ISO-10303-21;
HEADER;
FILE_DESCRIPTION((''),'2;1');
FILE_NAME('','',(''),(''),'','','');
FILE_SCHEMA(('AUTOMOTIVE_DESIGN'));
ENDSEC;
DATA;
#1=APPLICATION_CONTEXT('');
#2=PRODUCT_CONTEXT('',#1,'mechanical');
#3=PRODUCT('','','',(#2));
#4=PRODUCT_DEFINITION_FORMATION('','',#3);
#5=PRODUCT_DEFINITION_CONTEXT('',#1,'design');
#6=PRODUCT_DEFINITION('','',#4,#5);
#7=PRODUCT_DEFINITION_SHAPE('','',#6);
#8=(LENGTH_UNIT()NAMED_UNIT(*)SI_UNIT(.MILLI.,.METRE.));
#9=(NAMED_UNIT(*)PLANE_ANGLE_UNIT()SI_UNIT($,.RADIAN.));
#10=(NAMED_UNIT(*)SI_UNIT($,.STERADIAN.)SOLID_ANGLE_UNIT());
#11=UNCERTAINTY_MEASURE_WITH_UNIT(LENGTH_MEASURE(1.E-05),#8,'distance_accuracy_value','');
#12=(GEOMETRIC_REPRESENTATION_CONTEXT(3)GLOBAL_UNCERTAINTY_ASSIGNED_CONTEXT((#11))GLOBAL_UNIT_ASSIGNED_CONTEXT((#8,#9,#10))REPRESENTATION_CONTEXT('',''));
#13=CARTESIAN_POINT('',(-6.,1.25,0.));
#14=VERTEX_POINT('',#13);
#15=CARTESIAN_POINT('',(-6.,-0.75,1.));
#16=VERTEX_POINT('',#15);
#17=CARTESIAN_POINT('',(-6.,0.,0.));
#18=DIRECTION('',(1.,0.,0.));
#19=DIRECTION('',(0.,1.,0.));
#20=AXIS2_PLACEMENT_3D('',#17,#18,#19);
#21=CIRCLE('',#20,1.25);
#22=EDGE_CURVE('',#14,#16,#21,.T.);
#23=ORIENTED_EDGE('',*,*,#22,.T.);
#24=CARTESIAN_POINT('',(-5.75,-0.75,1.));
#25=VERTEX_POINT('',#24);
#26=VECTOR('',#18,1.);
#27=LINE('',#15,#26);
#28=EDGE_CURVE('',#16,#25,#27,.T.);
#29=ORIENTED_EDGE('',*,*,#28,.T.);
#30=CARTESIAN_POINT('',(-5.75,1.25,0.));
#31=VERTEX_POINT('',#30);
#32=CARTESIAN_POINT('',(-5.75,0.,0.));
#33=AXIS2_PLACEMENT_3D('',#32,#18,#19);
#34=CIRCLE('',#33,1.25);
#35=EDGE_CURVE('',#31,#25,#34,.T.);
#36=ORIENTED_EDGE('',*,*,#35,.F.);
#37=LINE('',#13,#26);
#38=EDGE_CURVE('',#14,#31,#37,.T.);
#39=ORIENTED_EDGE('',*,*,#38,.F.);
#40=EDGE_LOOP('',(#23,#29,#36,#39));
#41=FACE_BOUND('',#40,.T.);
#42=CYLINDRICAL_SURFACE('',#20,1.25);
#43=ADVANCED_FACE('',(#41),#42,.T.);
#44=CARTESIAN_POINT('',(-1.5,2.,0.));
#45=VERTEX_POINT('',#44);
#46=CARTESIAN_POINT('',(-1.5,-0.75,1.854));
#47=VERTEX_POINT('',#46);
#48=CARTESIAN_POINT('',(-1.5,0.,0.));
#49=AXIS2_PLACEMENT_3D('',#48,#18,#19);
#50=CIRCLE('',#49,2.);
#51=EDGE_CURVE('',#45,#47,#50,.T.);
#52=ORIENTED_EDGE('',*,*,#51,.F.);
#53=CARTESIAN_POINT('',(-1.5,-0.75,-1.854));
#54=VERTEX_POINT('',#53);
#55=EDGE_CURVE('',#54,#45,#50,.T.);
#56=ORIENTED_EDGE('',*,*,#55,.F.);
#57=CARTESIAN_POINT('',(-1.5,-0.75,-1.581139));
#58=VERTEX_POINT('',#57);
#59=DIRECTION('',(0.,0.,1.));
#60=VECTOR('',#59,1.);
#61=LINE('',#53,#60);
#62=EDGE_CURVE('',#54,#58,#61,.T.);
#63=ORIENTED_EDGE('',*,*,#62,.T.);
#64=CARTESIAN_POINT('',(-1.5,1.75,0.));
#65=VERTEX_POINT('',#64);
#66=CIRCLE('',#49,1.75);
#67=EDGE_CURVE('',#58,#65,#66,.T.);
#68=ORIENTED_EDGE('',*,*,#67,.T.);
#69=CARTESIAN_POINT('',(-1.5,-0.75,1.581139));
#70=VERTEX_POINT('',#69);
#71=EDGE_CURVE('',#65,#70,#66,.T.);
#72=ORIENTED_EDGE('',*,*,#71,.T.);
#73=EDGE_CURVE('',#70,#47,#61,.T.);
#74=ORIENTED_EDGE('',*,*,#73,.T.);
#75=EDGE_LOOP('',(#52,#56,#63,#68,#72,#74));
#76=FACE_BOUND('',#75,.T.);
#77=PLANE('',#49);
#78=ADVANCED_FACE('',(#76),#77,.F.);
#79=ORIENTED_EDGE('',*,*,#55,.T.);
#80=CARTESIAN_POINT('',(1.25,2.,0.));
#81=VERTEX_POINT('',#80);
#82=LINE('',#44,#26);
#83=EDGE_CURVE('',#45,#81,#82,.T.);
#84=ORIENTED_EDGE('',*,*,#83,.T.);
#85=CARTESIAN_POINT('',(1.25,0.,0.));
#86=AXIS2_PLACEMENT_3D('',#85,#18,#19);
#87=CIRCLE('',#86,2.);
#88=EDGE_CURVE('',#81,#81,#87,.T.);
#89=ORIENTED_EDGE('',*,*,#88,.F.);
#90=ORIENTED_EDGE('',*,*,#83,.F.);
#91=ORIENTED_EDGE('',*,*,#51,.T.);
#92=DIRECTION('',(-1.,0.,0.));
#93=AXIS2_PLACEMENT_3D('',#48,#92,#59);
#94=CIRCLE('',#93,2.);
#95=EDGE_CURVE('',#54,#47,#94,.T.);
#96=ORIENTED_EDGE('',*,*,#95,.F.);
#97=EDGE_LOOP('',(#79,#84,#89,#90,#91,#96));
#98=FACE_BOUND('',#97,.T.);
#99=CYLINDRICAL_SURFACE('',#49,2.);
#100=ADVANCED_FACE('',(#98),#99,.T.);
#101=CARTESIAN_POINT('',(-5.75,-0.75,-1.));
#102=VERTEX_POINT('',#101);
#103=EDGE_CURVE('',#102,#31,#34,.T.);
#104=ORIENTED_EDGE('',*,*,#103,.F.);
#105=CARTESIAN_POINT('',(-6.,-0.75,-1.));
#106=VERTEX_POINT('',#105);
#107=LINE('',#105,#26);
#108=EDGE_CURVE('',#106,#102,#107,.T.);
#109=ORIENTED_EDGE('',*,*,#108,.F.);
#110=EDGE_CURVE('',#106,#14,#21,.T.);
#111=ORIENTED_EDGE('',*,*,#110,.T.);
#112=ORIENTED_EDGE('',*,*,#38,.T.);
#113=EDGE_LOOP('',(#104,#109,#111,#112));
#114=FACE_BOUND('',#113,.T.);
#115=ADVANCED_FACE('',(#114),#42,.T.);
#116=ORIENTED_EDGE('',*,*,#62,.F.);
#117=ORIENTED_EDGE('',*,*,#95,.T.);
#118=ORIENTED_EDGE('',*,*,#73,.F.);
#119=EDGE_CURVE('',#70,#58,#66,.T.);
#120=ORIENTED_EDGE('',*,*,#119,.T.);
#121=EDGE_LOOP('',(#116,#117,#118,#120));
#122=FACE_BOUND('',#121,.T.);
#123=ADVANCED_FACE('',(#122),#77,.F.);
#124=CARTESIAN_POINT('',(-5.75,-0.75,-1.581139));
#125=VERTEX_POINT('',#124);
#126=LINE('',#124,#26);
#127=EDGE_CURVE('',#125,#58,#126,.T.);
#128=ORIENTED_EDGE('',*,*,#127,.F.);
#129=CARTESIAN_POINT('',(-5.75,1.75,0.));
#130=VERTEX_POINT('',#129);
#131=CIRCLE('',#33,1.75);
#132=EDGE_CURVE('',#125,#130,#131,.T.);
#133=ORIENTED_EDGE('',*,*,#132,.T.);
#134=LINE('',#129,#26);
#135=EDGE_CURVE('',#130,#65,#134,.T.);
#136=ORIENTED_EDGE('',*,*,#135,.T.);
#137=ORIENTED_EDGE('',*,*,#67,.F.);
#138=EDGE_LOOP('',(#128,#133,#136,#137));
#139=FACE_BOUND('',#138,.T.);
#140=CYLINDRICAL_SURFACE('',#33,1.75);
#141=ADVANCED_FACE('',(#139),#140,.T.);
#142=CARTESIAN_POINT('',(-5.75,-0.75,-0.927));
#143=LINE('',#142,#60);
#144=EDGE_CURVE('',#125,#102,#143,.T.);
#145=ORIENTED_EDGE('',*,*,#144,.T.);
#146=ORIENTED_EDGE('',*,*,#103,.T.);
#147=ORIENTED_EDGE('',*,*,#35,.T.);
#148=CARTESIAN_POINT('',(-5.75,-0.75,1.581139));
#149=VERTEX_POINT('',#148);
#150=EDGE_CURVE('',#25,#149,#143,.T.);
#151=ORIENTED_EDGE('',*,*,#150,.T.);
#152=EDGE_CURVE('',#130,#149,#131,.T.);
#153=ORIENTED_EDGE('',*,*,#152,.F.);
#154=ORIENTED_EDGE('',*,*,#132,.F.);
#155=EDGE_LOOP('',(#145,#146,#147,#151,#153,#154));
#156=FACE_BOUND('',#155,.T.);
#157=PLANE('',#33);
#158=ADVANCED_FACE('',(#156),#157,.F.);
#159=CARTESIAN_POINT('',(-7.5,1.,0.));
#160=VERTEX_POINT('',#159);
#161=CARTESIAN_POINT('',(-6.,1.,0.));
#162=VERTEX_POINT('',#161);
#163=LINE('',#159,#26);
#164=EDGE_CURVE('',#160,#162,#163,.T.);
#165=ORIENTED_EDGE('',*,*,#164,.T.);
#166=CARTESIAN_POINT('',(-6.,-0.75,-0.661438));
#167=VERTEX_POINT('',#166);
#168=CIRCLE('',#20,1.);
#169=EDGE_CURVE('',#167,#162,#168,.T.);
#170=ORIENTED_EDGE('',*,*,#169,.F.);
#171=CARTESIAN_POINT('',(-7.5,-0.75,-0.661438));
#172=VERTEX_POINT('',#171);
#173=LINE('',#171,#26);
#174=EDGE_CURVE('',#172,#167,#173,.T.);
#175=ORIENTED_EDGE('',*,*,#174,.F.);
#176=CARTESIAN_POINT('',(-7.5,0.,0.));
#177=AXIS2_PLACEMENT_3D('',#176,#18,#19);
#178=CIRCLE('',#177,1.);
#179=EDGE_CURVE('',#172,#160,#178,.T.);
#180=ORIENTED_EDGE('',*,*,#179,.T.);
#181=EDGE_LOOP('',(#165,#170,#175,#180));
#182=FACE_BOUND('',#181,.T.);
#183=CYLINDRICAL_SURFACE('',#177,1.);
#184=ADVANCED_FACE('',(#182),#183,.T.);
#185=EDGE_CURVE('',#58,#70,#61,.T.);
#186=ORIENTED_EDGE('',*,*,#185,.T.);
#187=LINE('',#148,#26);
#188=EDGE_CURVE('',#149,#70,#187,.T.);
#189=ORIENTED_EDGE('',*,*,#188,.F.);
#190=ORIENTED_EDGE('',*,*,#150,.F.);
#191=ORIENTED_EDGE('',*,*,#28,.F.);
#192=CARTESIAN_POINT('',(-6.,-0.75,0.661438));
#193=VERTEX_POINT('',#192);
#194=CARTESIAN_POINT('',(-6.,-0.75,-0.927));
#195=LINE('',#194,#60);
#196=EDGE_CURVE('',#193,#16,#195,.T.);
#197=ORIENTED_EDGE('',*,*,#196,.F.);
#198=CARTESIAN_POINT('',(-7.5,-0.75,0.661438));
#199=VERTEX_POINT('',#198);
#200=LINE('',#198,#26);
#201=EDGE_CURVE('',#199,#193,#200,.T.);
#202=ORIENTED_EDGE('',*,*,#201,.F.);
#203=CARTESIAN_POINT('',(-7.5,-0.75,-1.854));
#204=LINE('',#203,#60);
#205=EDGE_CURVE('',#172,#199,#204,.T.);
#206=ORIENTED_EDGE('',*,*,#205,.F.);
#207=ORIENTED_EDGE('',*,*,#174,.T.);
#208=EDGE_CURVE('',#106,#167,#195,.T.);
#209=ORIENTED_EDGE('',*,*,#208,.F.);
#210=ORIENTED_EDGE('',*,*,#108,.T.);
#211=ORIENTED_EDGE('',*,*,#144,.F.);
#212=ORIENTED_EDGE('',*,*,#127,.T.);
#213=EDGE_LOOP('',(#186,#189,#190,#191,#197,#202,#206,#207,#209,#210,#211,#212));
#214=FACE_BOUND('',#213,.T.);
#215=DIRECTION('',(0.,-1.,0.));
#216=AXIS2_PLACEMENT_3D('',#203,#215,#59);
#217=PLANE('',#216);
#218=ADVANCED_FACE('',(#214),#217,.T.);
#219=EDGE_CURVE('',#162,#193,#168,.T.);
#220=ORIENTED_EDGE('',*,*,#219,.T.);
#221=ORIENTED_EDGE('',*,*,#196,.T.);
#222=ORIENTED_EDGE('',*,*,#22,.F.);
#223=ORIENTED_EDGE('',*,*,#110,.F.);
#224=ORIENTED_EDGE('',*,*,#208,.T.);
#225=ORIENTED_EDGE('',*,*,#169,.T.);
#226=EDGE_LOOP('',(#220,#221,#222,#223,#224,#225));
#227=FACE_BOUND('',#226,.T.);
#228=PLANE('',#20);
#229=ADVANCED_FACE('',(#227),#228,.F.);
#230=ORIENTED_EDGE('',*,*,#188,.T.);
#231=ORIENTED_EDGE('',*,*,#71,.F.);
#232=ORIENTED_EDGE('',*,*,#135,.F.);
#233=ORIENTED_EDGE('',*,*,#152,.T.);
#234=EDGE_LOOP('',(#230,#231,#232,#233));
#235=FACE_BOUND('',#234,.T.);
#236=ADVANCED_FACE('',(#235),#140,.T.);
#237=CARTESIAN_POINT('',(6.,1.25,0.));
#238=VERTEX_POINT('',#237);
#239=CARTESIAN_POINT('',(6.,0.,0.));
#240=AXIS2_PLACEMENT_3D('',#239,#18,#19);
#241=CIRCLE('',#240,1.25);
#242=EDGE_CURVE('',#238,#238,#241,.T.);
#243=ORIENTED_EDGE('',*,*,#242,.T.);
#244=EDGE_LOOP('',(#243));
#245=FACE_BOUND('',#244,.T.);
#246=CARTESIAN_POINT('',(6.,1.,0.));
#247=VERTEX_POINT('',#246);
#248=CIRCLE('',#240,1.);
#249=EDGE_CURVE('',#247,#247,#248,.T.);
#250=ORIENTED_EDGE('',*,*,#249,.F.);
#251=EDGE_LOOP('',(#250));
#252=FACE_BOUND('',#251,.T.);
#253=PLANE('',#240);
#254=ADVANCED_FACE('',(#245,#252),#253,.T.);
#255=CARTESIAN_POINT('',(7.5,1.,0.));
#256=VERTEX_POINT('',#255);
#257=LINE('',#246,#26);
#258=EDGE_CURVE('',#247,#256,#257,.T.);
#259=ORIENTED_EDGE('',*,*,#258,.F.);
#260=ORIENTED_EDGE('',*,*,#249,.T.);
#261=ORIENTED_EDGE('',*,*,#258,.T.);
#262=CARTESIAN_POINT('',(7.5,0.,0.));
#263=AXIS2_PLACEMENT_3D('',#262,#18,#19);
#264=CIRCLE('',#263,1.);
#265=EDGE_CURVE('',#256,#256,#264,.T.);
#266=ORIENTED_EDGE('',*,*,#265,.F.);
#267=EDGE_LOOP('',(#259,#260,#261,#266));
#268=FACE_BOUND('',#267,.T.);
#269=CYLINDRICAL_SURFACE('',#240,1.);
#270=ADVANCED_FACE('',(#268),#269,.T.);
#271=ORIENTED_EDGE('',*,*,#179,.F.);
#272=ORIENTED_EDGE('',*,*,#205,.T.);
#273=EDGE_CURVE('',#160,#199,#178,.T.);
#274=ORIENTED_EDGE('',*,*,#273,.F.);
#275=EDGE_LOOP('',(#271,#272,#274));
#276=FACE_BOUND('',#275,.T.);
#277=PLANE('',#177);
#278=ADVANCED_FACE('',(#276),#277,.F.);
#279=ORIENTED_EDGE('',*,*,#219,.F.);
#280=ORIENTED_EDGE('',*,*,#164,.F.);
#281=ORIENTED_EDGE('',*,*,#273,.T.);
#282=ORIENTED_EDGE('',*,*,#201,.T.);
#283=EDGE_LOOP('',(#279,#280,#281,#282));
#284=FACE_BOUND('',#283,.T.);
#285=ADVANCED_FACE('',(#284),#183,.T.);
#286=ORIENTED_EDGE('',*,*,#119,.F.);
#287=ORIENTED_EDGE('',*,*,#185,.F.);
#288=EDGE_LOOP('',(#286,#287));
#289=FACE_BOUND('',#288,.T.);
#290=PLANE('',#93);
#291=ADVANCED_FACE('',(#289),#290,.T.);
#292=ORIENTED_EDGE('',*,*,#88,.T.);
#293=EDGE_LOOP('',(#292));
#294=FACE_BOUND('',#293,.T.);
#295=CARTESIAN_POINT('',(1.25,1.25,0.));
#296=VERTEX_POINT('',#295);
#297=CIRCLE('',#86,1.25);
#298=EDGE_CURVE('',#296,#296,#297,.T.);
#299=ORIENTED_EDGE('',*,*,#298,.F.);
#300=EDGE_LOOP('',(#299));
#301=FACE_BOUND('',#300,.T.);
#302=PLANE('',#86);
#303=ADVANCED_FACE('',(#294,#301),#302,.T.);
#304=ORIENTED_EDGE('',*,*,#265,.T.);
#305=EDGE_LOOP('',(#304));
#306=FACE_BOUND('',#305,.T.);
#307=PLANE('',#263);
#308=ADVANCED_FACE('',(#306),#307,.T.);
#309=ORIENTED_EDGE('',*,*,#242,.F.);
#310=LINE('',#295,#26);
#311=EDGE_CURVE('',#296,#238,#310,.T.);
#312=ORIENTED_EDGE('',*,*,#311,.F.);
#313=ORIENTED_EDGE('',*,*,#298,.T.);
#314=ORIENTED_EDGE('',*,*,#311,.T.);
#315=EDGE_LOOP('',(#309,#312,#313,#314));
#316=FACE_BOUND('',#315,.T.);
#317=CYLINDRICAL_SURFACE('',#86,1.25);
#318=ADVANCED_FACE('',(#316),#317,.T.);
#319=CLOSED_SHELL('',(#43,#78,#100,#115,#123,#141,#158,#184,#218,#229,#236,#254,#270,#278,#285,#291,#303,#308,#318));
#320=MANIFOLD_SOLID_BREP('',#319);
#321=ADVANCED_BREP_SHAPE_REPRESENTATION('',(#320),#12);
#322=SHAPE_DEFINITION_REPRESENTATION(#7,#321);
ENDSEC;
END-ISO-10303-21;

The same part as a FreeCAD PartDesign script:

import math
import FreeCAD as App
import Part
import Sketcher

V = App.Vector
Q = App.Units.Quantity

doc = App.newDocument("Part")
body = doc.addObject("PartDesign::Body", "Body")

sketch1 = doc.addObject("Sketcher::SketchObject", "Sketch")
body.addObject(sketch1)
sketch1.AttachmentSupport = (doc.XY_Plane, [""])
sketch1.MapMode = "FlatFace"
sketch1.addGeometry([
    Part.LineSegment(V(-7.5, 1, 0), V(-7.5, 0, 0)),
    Part.LineSegment(V(-7.5, 0, 0), V(7.5, 0, 0)),
    Part.LineSegment(V(7.5, 0, 0), V(7.5, 1, 0)),
    Part.LineSegment(V(7.5, 1, 0), V(6, 1, 0)),
    Part.LineSegment(V(6, 1, 0), V(6, 1.25, 0)),
    Part.LineSegment(V(6, 1.25, 0), V(1.25, 1.25, 0)),
    Part.LineSegment(V(1.25, 1.25, 0), V(1.25, 2, 0)),
    Part.LineSegment(V(1.25, 2, 0), V(-1.5, 2, 0)),
    Part.LineSegment(V(-1.5, 2, 0), V(-1.5, 1.75, 0)),
    Part.LineSegment(V(-1.5, 1.75, 0), V(-5.75, 1.75, 0)),
    Part.LineSegment(V(-5.75, 1.75, 0), V(-5.75, 1.25, 0)),
    Part.LineSegment(V(-5.75, 1.25, 0), V(-6, 1.25, 0)),
    Part.LineSegment(V(-6, 1.25, 0), V(-6, 1, 0)),
    Part.LineSegment(V(-6, 1, 0), V(-7.5, 1, 0)),
], False)
sketch1.addConstraint([
    Sketcher.Constraint("Coincident", 0, 2, 1, 1),
    Sketcher.Constraint("Coincident", 1, 2, 2, 1),
    Sketcher.Constraint("Coincident", 2, 2, 3, 1),
    Sketcher.Constraint("Coincident", 3, 2, 4, 1),
    Sketcher.Constraint("Coincident", 4, 2, 5, 1),
    Sketcher.Constraint("Coincident", 5, 2, 6, 1),
    Sketcher.Constraint("Coincident", 6, 2, 7, 1),
    Sketcher.Constraint("Coincident", 7, 2, 8, 1),
    Sketcher.Constraint("Coincident", 8, 2, 9, 1),
    Sketcher.Constraint("Coincident", 9, 2, 10, 1),
    Sketcher.Constraint("Coincident", 10, 2, 11, 1),
    Sketcher.Constraint("Coincident", 11, 2, 12, 1),
    Sketcher.Constraint("Coincident", 12, 2, 13, 1),
    Sketcher.Constraint("Coincident", 13, 2, 0, 1),
    Sketcher.Constraint("Vertical", 0),
    Sketcher.Constraint("Horizontal", 1),
    Sketcher.Constraint("Vertical", 2),
    Sketcher.Constraint("Horizontal", 3),
    Sketcher.Constraint("Vertical", 4),
    Sketcher.Constraint("Horizontal", 5),
    Sketcher.Constraint("Vertical", 6),
    Sketcher.Constraint("Horizontal", 7),
    Sketcher.Constraint("Vertical", 8),
    Sketcher.Constraint("Horizontal", 9),
    Sketcher.Constraint("Vertical", 10),
    Sketcher.Constraint("Horizontal", 11),
    Sketcher.Constraint("Vertical", 12),
    Sketcher.Constraint("Horizontal", 13),
    Sketcher.Constraint("Symmetric", 0, 2, 1, 2, -1, 1),
    Sketcher.Constraint("Symmetric", 4, 2, 11, 2, -2),
    Sketcher.Constraint("Horizontal", 3, 2, 12, 2),
    Sketcher.Constraint("Equal", 11, 4),
    Sketcher.Constraint("Equal", 4, 8),
    Sketcher.Constraint("DistanceX", 1, 1, 1, 2, Q("15 mm")),
    Sketcher.Constraint("DistanceX", 3, 2, 3, 1, Q("1.5 mm")),
    Sketcher.Constraint("DistanceY", -1, 1, 6, 2, Q("2 mm")),
    Sketcher.Constraint("DistanceX", 9, 2, 9, 1, Q("4.25 mm")),
    Sketcher.Constraint("DistanceX", 11, 2, 11, 1, Q("0.25 mm")),
    Sketcher.Constraint("DistanceY", 0, 2, 0, 1, Q("1 mm")),
    Sketcher.Constraint("DistanceX", 5, 2, 2, 2, Q("6.25 mm")),
])
revolution = doc.addObject("PartDesign::Revolution", "Revolution")
body.addObject(revolution)
revolution.Profile = sketch1
revolution.ReferenceAxis = (sketch1, ["H_Axis"])
revolution.Angle = 360

sketch2 = doc.addObject("Sketcher::SketchObject", "Sketch001")
body.addObject(sketch2)
sketch2.AttachmentSupport = (doc.YZ_Plane, [""])
sketch2.MapMode = "FlatFace"
sketch2.AttachmentOffset = App.Placement(V(0, 0, -7.5), App.Rotation())
sketch2.addGeometry([
    Part.LineSegment(V(-0.8, 1.9, 0), V(-0.8, -1.9, 0)),
    Part.ArcOfCircle(Part.Circle(V(0, 0, 0), V(0, 0, 1), 2), math.radians(112), math.radians(248)),
], False)
sketch2.addConstraint([
    Sketcher.Constraint("Coincident", 0, 1, 1, 1),
    Sketcher.Constraint("Coincident", 1, 2, 0, 2),
    Sketcher.Constraint("Vertical", 0),
    Sketcher.Constraint("Coincident", 1, 3, -1, 1),
    Sketcher.Constraint("Radius", 1, Q("2 mm")),
    Sketcher.Constraint("DistanceX", 0, 1, -1, 1, Q("0.75 mm")),
])
pocket1 = doc.addObject("PartDesign::Pocket", "Pocket")
body.addObject(pocket1)
pocket1.Profile = sketch2
pocket1.Length = 6
pocket1.Reversed = True

doc.recompute()
